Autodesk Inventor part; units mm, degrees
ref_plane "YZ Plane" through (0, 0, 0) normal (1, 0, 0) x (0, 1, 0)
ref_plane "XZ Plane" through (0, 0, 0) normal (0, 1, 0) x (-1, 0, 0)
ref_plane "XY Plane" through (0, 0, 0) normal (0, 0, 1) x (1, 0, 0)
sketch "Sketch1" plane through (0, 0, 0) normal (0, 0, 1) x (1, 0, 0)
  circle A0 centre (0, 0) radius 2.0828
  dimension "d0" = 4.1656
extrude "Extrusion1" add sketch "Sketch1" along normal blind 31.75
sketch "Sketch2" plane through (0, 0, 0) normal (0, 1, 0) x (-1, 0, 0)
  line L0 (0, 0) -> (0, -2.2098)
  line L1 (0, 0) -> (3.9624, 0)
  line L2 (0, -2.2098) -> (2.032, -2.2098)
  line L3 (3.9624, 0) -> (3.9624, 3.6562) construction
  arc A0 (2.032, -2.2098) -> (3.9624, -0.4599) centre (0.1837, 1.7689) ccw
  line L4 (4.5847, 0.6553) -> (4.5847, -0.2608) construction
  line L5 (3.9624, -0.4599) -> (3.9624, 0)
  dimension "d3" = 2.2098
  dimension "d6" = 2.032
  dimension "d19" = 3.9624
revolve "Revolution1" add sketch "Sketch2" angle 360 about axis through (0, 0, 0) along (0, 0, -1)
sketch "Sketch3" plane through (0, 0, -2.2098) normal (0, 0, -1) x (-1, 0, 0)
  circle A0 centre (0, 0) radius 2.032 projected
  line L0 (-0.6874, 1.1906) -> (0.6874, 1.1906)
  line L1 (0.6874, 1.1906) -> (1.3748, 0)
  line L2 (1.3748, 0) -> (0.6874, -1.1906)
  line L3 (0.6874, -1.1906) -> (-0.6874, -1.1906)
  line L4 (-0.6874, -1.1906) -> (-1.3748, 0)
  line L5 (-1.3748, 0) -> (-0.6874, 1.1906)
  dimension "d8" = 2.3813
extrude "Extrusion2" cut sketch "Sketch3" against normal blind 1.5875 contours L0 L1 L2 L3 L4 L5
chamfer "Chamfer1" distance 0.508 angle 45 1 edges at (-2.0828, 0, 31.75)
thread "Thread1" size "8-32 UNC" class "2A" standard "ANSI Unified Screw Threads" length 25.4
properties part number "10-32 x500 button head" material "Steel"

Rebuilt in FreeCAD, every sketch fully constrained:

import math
import FreeCAD as App
import Part
import Sketcher
Q = App.Units.Quantity


def edges_at(feature, points):
    """Names of the edges that pass closest to the given points."""
    edges = feature.Shape.Edges
    near = lambda p: min(range(len(edges)), key=lambda i: edges[i].distToShape(Part.Vertex(*p))[0])
    return sorted({f"Edge{near(p) + 1}" for p in points})

doc = App.newDocument("Part")
body = doc.addObject("PartDesign::Body", "Body")

# Sketch on XY plane
sketch1 = doc.addObject("Sketcher::SketchObject", "Sketch")
body.addObject(sketch1)
sketch1.AttachmentSupport = (doc.XY_Plane, [""])
sketch1.MapMode = "FlatFace"
sketch1.addGeometry(Part.Circle(App.Vector(0, 0, 0), App.Vector(0, 0, 1), 2.1), False)
sketch1.addConstraint(Sketcher.Constraint("Coincident", 0, 3, -1, 1))
sketch1.addConstraint(Sketcher.Constraint("Diameter", 0, Q("0.164 in")))
pad1 = doc.addObject("PartDesign::Pad", "Pad")
body.addObject(pad1)
pad1.Profile = sketch1
pad1.Length = Q("1.25 in")

# Sketch on XZ plane
sketch2 = doc.addObject("Sketcher::SketchObject", "Sketch001")
body.addObject(sketch2)
sketch2.AttachmentSupport = (doc.XZ_Plane, [""])
sketch2.MapMode = "FlatFace"
sketch2.addGeometry(Part.LineSegment(App.Vector(-3.96, 0, 0), App.Vector(0, 0, 0)), False)
sketch2.addGeometry(Part.LineSegment(App.Vector(0, 0, 0), App.Vector(0, -2.21, 0)), False)
sketch2.addGeometry(Part.LineSegment(App.Vector(0, -2.21, 0), App.Vector(-2.03, -2.21, 0)), False)
sketch2.addGeometry(Part.ArcOfCircle(Part.Circle(App.Vector(-0.18, 1.77, 0), App.Vector(0, 0, 1), 4.39), math.radians(-149), math.radians(-115)), False)
sketch2.addGeometry(Part.LineSegment(App.Vector(-3.96, -0.46, 0), App.Vector(-3.96, 0, 0)), False)
sketch2.addConstraint(Sketcher.Constraint("Coincident", 0, 2, 1, 1))
sketch2.addConstraint(Sketcher.Constraint("Coincident", 1, 2, 2, 1))
sketch2.addConstraint(Sketcher.Constraint("Coincident", 2, 2, 3, 2))
sketch2.addConstraint(Sketcher.Constraint("Coincident", 3, 1, 4, 1))
sketch2.addConstraint(Sketcher.Constraint("Coincident", 4, 2, 0, 1))
sketch2.addConstraint(Sketcher.Constraint("Horizontal", 0))
sketch2.addConstraint(Sketcher.Constraint("Vertical", 1))
sketch2.addConstraint(Sketcher.Constraint("Horizontal", 2))
sketch2.addConstraint(Sketcher.Constraint("Vertical", 4))
sketch2.addConstraint(Sketcher.Constraint("Coincident", 0, 2, -1, 1))
sketch2.addConstraint(Sketcher.Constraint("DistanceX", 2, 2, 2, 1, Q("0.08 in")))
sketch2.addConstraint(Sketcher.Constraint("DistanceX", 0, 1, 0, 2, Q("0.156 in")))
sketch2.addConstraint(Sketcher.Constraint("DistanceY", 1, 2, 1, 1, Q("0.087 in")))
sketch2.addConstraint(Sketcher.Constraint("Radius", 3, 4.387))
sketch2.addConstraint(Sketcher.Constraint("DistanceY", 4, 1, 4, 2, Q("0.0181 in")))
revolution = doc.addObject("PartDesign::Revolution", "Revolution")
body.addObject(revolution)
revolution.Profile = sketch2
revolution.ReferenceAxis = (sketch2, ["V_Axis"])
revolution.Angle = 360

# Sketch on XY plane
sketch3 = doc.addObject("Sketcher::SketchObject", "Sketch002")
body.addObject(sketch3)
sketch3.AttachmentSupport = (doc.XY_Plane, [""])
sketch3.MapMode = "FlatFace"
sketch3.AttachmentOffset = App.Placement(App.Vector(0, 0, -0.087 * 25.4), App.Rotation())
sketch3.addGeometry(Part.LineSegment(App.Vector(-0.7, 1.2, 0), App.Vector(0.7, 1.2, 0)), False)
sketch3.addGeometry(Part.LineSegment(App.Vector(0.7, 1.2, 0), App.Vector(1.4, 0, 0)), False)
sketch3.addGeometry(Part.LineSegment(App.Vector(1.4, 0, 0), App.Vector(0.7, -1.2, 0)), False)
sketch3.addGeometry(Part.LineSegment(App.Vector(0.7, -1.2, 0), App.Vector(-0.7, -1.2, 0)), False)
sketch3.addGeometry(Part.LineSegment(App.Vector(-0.7, -1.2, 0), App.Vector(-1.4, 0, 0)), False)
sketch3.addGeometry(Part.LineSegment(App.Vector(-1.4, 0, 0), App.Vector(-0.7, 1.2, 0)), False)
sketch3.addConstraint(Sketcher.Constraint("Coincident", 0, 2, 1, 1))
sketch3.addConstraint(Sketcher.Constraint("Coincident", 1, 2, 2, 1))
sketch3.addConstraint(Sketcher.Constraint("Coincident", 2, 2, 3, 1))
sketch3.addConstraint(Sketcher.Constraint("Coincident", 3, 2, 4, 1))
sketch3.addConstraint(Sketcher.Constraint("Coincident", 4, 2, 5, 1))
sketch3.addConstraint(Sketcher.Constraint("Coincident", 5, 2, 0, 1))
sketch3.addConstraint(Sketcher.Constraint("Horizontal", 0))
sketch3.addConstraint(Sketcher.Constraint("Horizontal", 3))
sketch3.addConstraint(Sketcher.Constraint("Symmetric", 0, 2, 3, 2, -1, 1))
sketch3.addConstraint(Sketcher.Constraint("Symmetric", 1, 2, 4, 2, -1, 1))
sketch3.addConstraint(Sketcher.Constraint("PointOnObject", 1, 2, -1))
sketch3.addConstraint(Sketcher.Constraint("Parallel", 2, 5))
sketch3.addConstraint(Sketcher.Constraint("Vertical", 0, 2, 2, 2))
sketch3.addConstraint(Sketcher.Constraint("Angle", 1, Q("-59.9998 deg")))
sketch3.addConstraint(Sketcher.Constraint("DistanceY", 2, 2, 0, 2, Q("0.093748 in")))
sketch3.addConstraint(Sketcher.Constraint("DistanceX", 0, 1, 0, 2, 1.3748))
pocket1 = doc.addObject("PartDesign::Pocket", "Pocket")
body.addObject(pocket1)
pocket1.Profile = sketch3
pocket1.Length = Q("0.0625 in")
pocket1.Reversed = True
doc.recompute()

chamfer = doc.addObject("PartDesign::Chamfer", "Chamfer")
body.addObject(chamfer)
chamfer.Base = (pocket1, edges_at(pocket1, [(-2.083, 0, 31.75)]))
chamfer.Size = Q("0.02 in")

doc.recompute()
